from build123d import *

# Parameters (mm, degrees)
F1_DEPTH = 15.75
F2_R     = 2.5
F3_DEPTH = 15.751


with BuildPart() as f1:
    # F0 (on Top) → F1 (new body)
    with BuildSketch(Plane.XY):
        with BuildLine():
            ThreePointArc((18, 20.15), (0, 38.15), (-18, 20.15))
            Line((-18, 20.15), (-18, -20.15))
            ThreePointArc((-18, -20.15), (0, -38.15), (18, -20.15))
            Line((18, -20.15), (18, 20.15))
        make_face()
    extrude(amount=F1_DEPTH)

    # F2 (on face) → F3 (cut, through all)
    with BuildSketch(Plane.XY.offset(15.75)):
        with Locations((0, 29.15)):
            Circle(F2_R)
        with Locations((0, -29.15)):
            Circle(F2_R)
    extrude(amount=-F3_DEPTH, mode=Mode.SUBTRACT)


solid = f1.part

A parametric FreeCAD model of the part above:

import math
import FreeCAD as App
import Part
import Sketcher
from FreeCAD import Vector
Q = App.Units.Quantity

doc = App.newDocument("Part")
body = doc.addObject("PartDesign::Body", "Body")

# Sketch on XY plane
sketch1 = body.newObject("Sketcher::SketchObject", "Sketch")
sketch1.AttachmentSupport = (doc.getObject("XY_Plane"), [""])
sketch1.MapMode = "FlatFace"
sketch1.addGeometry([
    Part.ArcOfCircle(Part.Circle(Vector(0, 20, 0), Vector(0, 0, 1), 18), math.radians(0), math.radians(180)),
    Part.LineSegment(Vector(-18, 20, 0), Vector(-18, -20, 0)),
    Part.ArcOfCircle(Part.Circle(Vector(0, -20, 0), Vector(0, 0, 1), 18), math.radians(180), math.radians(360)),
    Part.LineSegment(Vector(18, -20, 0), Vector(18, 20, 0)),
], False)
sketch1.addConstraint([
    Sketcher.Constraint("Tangent", 0, 2, 1, 1),
    Sketcher.Constraint("Tangent", 1, 2, 2, 1),
    Sketcher.Constraint("Tangent", 2, 2, 3, 1),
    Sketcher.Constraint("Tangent", 3, 2, 0, 1),
    Sketcher.Constraint("Vertical", 1),
    Sketcher.Constraint("Vertical", 3),
    Sketcher.Constraint("Symmetric", 0, 3, 2, 3, -1, 1),
    Sketcher.Constraint("Radius", 0, Q("18 mm")),
    Sketcher.Constraint("DistanceY", 1, 2, 1, 1, Q("40.3 mm")),
])
pad1 = body.newObject("PartDesign::Pad", "Pad")
pad1.Profile = sketch1
pad1.Length = 15.75

# Sketch on XY plane
sketch2 = body.newObject("Sketcher::SketchObject", "Sketch001")
sketch2.AttachmentSupport = (doc.getObject("XY_Plane"), [""])
sketch2.MapMode = "FlatFace"
sketch2.AttachmentOffset = App.Placement(Vector(0, 0, 15.75), App.Rotation())
sketch2.addGeometry([
    Part.Circle(Vector(0, 29.1, 0), Vector(0, 0, 1), 2.5),
    Part.Circle(Vector(0, -29.1, 0), Vector(0, 0, 1), 2.5),
], False)
sketch2.addConstraint([
    Sketcher.Constraint("Equal", 0, 1),
    Sketcher.Constraint("Symmetric", 0, 3, 1, 3, -1, 1),
    Sketcher.Constraint("PointOnObject", 0, 3, -2),
    Sketcher.Constraint("Diameter", 0, Q("5 mm")),
    Sketcher.Constraint("DistanceY", 1, 3, 0, 3, Q("58.3 mm")),
])
pocket1 = body.newObject("PartDesign::Pocket", "Pocket")
pocket1.Profile = sketch2
pocket1.Type = "ThroughAll"

doc.recompute()
